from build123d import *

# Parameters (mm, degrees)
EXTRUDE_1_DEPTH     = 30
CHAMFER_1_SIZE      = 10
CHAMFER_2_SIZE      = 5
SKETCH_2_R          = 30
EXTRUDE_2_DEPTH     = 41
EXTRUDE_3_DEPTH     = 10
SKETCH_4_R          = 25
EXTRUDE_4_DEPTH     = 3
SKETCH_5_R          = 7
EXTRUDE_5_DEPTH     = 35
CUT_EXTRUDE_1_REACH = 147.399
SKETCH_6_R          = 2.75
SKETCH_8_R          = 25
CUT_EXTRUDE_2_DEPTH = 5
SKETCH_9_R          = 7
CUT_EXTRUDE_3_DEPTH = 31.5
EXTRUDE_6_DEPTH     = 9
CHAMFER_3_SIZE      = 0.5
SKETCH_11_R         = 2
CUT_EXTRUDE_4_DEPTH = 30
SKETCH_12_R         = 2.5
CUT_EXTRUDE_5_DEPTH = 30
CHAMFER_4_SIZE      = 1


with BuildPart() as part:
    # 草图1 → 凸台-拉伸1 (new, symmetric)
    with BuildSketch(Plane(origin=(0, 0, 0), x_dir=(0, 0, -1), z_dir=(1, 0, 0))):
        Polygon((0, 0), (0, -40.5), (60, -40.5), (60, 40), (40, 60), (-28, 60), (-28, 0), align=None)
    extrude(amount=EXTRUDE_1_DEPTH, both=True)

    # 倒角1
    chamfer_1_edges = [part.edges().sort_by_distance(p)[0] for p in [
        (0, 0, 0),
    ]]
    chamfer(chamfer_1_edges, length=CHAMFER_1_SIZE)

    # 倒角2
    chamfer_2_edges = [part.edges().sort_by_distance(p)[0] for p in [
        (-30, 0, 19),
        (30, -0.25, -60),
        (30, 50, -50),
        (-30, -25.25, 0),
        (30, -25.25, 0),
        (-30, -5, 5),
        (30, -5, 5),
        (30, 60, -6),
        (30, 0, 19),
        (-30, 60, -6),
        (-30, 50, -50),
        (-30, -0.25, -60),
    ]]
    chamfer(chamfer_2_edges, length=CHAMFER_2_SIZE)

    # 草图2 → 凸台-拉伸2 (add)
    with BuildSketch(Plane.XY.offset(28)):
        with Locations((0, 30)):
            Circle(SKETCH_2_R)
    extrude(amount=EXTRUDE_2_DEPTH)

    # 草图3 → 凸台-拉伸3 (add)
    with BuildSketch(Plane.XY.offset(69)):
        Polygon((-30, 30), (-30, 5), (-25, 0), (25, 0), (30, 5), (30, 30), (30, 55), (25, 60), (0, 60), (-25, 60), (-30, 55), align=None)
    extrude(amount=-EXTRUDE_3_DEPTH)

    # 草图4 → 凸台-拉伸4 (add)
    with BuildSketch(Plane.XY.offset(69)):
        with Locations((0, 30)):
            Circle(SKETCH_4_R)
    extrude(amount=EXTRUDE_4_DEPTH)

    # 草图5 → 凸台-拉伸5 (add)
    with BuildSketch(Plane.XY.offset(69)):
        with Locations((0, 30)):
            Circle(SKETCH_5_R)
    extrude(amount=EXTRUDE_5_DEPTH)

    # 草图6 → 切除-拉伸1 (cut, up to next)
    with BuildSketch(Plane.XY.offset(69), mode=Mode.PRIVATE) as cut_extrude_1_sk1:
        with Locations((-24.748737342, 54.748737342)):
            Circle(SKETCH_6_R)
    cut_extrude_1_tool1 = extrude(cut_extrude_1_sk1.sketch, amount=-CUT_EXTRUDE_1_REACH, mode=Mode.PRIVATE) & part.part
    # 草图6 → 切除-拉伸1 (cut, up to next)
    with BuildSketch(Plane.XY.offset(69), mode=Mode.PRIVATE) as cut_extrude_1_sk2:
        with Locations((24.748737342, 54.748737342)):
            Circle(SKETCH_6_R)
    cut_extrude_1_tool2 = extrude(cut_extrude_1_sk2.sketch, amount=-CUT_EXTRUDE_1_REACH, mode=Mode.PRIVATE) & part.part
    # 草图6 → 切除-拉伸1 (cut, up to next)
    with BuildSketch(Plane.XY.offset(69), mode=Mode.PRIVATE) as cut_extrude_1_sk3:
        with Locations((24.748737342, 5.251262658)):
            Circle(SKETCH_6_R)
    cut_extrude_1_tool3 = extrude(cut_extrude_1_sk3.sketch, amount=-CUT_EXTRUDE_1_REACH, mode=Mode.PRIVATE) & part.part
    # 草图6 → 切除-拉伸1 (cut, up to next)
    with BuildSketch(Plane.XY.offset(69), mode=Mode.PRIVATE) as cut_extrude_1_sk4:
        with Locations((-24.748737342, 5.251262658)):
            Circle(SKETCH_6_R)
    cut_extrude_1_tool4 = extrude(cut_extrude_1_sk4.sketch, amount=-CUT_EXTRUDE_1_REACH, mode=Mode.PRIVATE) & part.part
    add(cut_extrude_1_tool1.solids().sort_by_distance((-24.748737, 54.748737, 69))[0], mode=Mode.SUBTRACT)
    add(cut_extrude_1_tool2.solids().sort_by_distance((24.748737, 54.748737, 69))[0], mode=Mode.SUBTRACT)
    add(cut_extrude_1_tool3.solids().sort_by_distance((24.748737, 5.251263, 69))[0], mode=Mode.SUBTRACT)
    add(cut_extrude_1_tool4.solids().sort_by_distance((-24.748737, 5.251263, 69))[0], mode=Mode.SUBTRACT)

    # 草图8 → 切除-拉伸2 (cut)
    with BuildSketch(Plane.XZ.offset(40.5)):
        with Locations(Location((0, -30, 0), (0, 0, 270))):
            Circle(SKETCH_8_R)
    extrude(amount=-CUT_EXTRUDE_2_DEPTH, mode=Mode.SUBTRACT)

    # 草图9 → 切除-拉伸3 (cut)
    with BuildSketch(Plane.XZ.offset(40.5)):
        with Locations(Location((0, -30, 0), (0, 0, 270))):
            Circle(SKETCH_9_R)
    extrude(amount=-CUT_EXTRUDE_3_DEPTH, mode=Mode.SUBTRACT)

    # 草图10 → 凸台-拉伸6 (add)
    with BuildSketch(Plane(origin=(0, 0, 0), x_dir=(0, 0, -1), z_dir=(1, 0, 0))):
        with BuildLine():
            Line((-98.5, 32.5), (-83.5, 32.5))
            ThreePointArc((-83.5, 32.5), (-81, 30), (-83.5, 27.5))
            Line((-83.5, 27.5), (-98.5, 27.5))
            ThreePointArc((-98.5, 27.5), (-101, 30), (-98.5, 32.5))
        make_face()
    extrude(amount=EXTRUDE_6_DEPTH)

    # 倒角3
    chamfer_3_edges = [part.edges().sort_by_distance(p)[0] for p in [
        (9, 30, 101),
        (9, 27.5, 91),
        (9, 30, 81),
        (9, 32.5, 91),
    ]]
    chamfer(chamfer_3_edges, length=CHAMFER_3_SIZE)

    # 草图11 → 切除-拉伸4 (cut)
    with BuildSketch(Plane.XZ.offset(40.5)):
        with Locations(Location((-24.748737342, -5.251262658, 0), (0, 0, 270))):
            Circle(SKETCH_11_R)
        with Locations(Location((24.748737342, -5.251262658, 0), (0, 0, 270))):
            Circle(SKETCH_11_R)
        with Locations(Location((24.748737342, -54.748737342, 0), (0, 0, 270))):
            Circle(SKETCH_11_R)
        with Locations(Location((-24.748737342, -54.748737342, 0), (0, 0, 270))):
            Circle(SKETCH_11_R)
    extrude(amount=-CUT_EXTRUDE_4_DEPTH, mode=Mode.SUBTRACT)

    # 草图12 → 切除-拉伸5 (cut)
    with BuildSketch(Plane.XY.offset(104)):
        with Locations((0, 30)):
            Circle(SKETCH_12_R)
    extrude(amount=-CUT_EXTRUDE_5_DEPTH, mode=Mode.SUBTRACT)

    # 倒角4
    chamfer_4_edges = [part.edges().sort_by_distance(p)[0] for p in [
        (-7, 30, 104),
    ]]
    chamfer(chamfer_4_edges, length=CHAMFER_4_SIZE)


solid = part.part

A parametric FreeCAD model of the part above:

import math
import FreeCAD as App
import Part
import Sketcher
from FreeCAD import Vector
Q = App.Units.Quantity


def edges_at(feature, points):
    """Names of the edges that pass closest to the given points."""
    edges = feature.Shape.Edges
    near = lambda p: min(range(len(edges)), key=lambda i: edges[i].distToShape(Part.Vertex(*p))[0])
    return sorted({f"Edge{near(p) + 1}" for p in points})

doc = App.newDocument("Part")
body = doc.addObject("PartDesign::Body", "Body")

# Sketch on YZ plane
sketch1 = body.newObject("Sketcher::SketchObject", "Sketch")
sketch1.AttachmentSupport = (doc.getObject("YZ_Plane"), [""])
sketch1.MapMode = "FlatFace"
sketch1.addGeometry([
    Part.LineSegment(Vector(0, 0, 0), Vector(-40.5, 0, 0)),  # 0
    Part.LineSegment(Vector(-40.5, 0, 0), Vector(-40.5, -60, 0)),  # 1
    Part.LineSegment(Vector(-40.5, -60, 0), Vector(40, -60, 0)),  # 2
    Part.LineSegment(Vector(40, -60, 0), Vector(60, -40, 0)),  # 3
    Part.LineSegment(Vector(60, -40, 0), Vector(60, 28, 0)),  # 4
    Part.LineSegment(Vector(60, 28, 0), Vector(0, 28, 0)),  # 5
    Part.LineSegment(Vector(0, 28, 0), Vector(0, 0, 0)),  # 6
], False)
sketch1.addConstraint([
    Sketcher.Constraint("Coincident", 0, 2, 1, 1),
    Sketcher.Constraint("Coincident", 1, 2, 2, 1),
    Sketcher.Constraint("Coincident", 2, 2, 3, 1),
    Sketcher.Constraint("Coincident", 3, 2, 4, 1),
    Sketcher.Constraint("Coincident", 4, 2, 5, 1),
    Sketcher.Constraint("Coincident", 5, 2, 6, 1),
    Sketcher.Constraint("Coincident", 6, 2, 0, 1),
    Sketcher.Constraint("Horizontal", 0),
    Sketcher.Constraint("Vertical", 1),
    Sketcher.Constraint("Horizontal", 2),
    Sketcher.Constraint("Vertical", 4),
    Sketcher.Constraint("Horizontal", 5),
    Sketcher.Constraint("Vertical", 6),
    Sketcher.Constraint("Coincident", 6, 2, -1, 1),
    Sketcher.Constraint("Equal", 5, 1),
    Sketcher.Constraint("DistanceX", 5, 2, 5, 1, Q("60 mm")),
    Sketcher.Constraint("DistanceY", 4, 1, 4, 2, Q("68 mm")),
    Sketcher.Constraint("DistanceY", 6, 2, 6, 1, Q("28 mm")),
    Sketcher.Constraint("Angle", 3, Q("45 deg")),
    Sketcher.Constraint("DistanceX", 0, 2, 0, 1, Q("40.5 mm")),
])
pad1 = body.newObject("PartDesign::Pad", "Pad")
pad1.Profile = sketch1
pad1.Length = 60
pad1.Midplane = True
doc.recompute()

chamfer = body.newObject("PartDesign::Chamfer", "Chamfer")
chamfer.Base = (pad1, edges_at(pad1, [(0, 0, 0)]))
chamfer.Size = 10
doc.recompute()

chamfer2 = body.newObject("PartDesign::Chamfer", "Chamfer001")
chamfer2.Base = (chamfer, edges_at(chamfer, [
    (-30, 0, 19),
    (30, -0.25, -60),
    (30, 50, -50),
    (-30, -25.25, 0),
    (30, -25.25, 0),
    (-30, -5, 5),
    (30, -5, 5),
    (30, 60, -6),
    (30, 0, 19),
    (-30, 60, -6),
    (-30, 50, -50),
    (-30, -0.25, -60),
]))
chamfer2.Size = 5

# Sketch on XY plane
sketch2 = body.newObject("Sketcher::SketchObject", "Sketch001")
sketch2.AttachmentSupport = (doc.getObject("XY_Plane"), [""])
sketch2.MapMode = "FlatFace"
sketch2.AttachmentOffset = App.Placement(Vector(0, 0, 28), App.Rotation())
sketch2.addGeometry(Part.Circle(Vector(0, 30, 0), Vector(0, 0, 1), 30), False)
sketch2.addConstraint([
    Sketcher.Constraint("PointOnObject", 0, 3, -2),
    Sketcher.Constraint("Diameter", 0, Q("60 mm")),
    Sketcher.Constraint("DistanceY", -1, 1, 0, 3, Q("30 mm")),
])
pad2 = body.newObject("PartDesign::Pad", "Pad001")
pad2.Profile = sketch2
pad2.Length = 41

# Sketch on XY plane
sketch3 = body.newObject("Sketcher::SketchObject", "Sketch002")
sketch3.AttachmentSupport = (doc.getObject("XY_Plane"), [""])
sketch3.MapMode = "FlatFace"
sketch3.AttachmentOffset = App.Placement(Vector(0, 0, 69), App.Rotation())
sketch3.addGeometry([
    Part.LineSegment(Vector(-30, 5, 0), Vector(-25, 0, 0)),  # 0
    Part.LineSegment(Vector(-25, 0, 0), Vector(25, 0, 0)),  # 1
    Part.LineSegment(Vector(25, 0, 0), Vector(30, 5, 0)),  # 2
    Part.LineSegment(Vector(30, 5, 0), Vector(30, 55, 0)),  # 3
    Part.LineSegment(Vector(30, 55, 0), Vector(25, 60, 0)),  # 4
    Part.LineSegment(Vector(25, 60, 0), Vector(-25, 60, 0)),  # 5
    Part.LineSegment(Vector(-25, 60, 0), Vector(-30, 55, 0)),  # 6
    Part.LineSegment(Vector(-30, 55, 0), Vector(-30, 5, 0)),  # 7
], False)
sketch3.addConstraint([
    Sketcher.Constraint("Coincident", 0, 2, 1, 1),
    Sketcher.Constraint("Coincident", 1, 2, 2, 1),
    Sketcher.Constraint("Coincident", 2, 2, 3, 1),
    Sketcher.Constraint("Coincident", 3, 2, 4, 1),
    Sketcher.Constraint("Coincident", 4, 2, 5, 1),
    Sketcher.Constraint("Coincident", 5, 2, 6, 1),
    Sketcher.Constraint("Coincident", 6, 2, 7, 1),
    Sketcher.Constraint("Coincident", 7, 2, 0, 1),
    Sketcher.Constraint("Horizontal", 1),
    Sketcher.Constraint("Vertical", 3),
    Sketcher.Constraint("Horizontal", 5),
    Sketcher.Constraint("Vertical", 7),
    Sketcher.Constraint("Symmetric", 0, 2, 1, 2, -1, 1),
    Sketcher.Constraint("Symmetric", 3, 2, 6, 2, -2),
    Sketcher.Constraint("Perpendicular", 0, 2),
    Sketcher.Constraint("Perpendicular", 2, 4),
    Sketcher.Constraint("Perpendicular", 4, 6),
    Sketcher.Constraint("Horizontal", 2, 2, 7, 2),
    Sketcher.Constraint("Vertical", 1, 2, 4, 2),
    Sketcher.Constraint("Equal", 5, 3),
    Sketcher.Constraint("DistanceX", 1, 1, 1, 2, Q("50 mm")),
    Sketcher.Constraint("DistanceX", -1, 1, 2, 2, Q("30 mm")),
])
pad3 = body.newObject("PartDesign::Pad", "Pad002")
pad3.Profile = sketch3
pad3.Length = 10
pad3.Reversed = True

# Sketch on XY plane
sketch4 = body.newObject("Sketcher::SketchObject", "Sketch003")
sketch4.AttachmentSupport = (doc.getObject("XY_Plane"), [""])
sketch4.MapMode = "FlatFace"
sketch4.AttachmentOffset = App.Placement(Vector(0, 0, 69), App.Rotation())
sketch4.addGeometry(Part.Circle(Vector(0, 30, 0), Vector(0, 0, 1), 25), False)
sketch4.addConstraint([
    Sketcher.Constraint("PointOnObject", 0, 3, -2),
    Sketcher.Constraint("Diameter", 0, Q("50 mm")),
    Sketcher.Constraint("DistanceY", -1, 1, 0, 3, Q("30 mm")),
])
pad4 = body.newObject("PartDesign::Pad", "Pad003")
pad4.Profile = sketch4
pad4.Length = 3

# Sketch on XY plane
sketch5 = body.newObject("Sketcher::SketchObject", "Sketch004")
sketch5.AttachmentSupport = (doc.getObject("XY_Plane"), [""])
sketch5.MapMode = "FlatFace"
sketch5.AttachmentOffset = App.Placement(Vector(0, 0, 69), App.Rotation())
sketch5.addGeometry(Part.Circle(Vector(0, 30, 0), Vector(0, 0, 1), 7), False)
sketch5.addConstraint([
    Sketcher.Constraint("PointOnObject", 0, 3, -2),
    Sketcher.Constraint("Diameter", 0, Q("14 mm")),
    Sketcher.Constraint("DistanceY", -1, 1, 0, 3, Q("30 mm")),
])
pad5 = body.newObject("PartDesign::Pad", "Pad004")
pad5.Profile = sketch5
pad5.Length = 35

# Sketch on XY plane
sketch6 = body.newObject("Sketcher::SketchObject", "Sketch005")
sketch6.AttachmentSupport = (doc.getObject("XY_Plane"), [""])
sketch6.MapMode = "FlatFace"
sketch6.AttachmentOffset = App.Placement(Vector(0, 0, 69), App.Rotation())
sketch6.addGeometry(Part.Circle(Vector(-24.748737, 54.748737, 0), Vector(0, 0, 1), 2.75), False)
sketch6.addConstraint([
    Sketcher.Constraint("Diameter", 0, Q("5.5 mm")),
    Sketcher.Constraint("DistanceX", 0, 3, -1, 1, Q("24.748737 mm")),
    Sketcher.Constraint("DistanceY", -1, 1, 0, 3, Q("54.748737 mm")),
])
pocket1 = body.newObject("PartDesign::Pocket", "Pocket")
pocket1.Profile = sketch6
pocket1.Type = "UpToFirst"

# Sketch on XY plane
sketch7 = body.newObject("Sketcher::SketchObject", "Sketch006")
sketch7.AttachmentSupport = (doc.getObject("XY_Plane"), [""])
sketch7.MapMode = "FlatFace"
sketch7.AttachmentOffset = App.Placement(Vector(0, 0, 69), App.Rotation())
sketch7.addGeometry(Part.Circle(Vector(24.748737, 54.748737, 0), Vector(0, 0, 1), 2.75), False)
sketch7.addConstraint([
    Sketcher.Constraint("Diameter", 0, Q("5.5 mm")),
    Sketcher.Constraint("DistanceX", -1, 1, 0, 3, Q("24.748737 mm")),
    Sketcher.Constraint("DistanceY", -1, 1, 0, 3, Q("54.748737 mm")),
])
pocket2 = body.newObject("PartDesign::Pocket", "Pocket001")
pocket2.Profile = sketch7
pocket2.Type = "UpToFirst"

# Sketch on XY plane
sketch8 = body.newObject("Sketcher::SketchObject", "Sketch007")
sketch8.AttachmentSupport = (doc.getObject("XY_Plane"), [""])
sketch8.MapMode = "FlatFace"
sketch8.AttachmentOffset = App.Placement(Vector(0, 0, 69), App.Rotation())
sketch8.addGeometry(Part.Circle(Vector(24.748737, 5.251263, 0), Vector(0, 0, 1), 2.75), False)
sketch8.addConstraint([
    Sketcher.Constraint("Diameter", 0, Q("5.5 mm")),
    Sketcher.Constraint("DistanceX", -1, 1, 0, 3, Q("24.748737 mm")),
    Sketcher.Constraint("DistanceY", -1, 1, 0, 3, Q("5.251263 mm")),
])
pocket3 = body.newObject("PartDesign::Pocket", "Pocket002")
pocket3.Profile = sketch8
pocket3.Type = "UpToFirst"

# Sketch on XY plane
sketch9 = body.newObject("Sketcher::SketchObject", "Sketch008")
sketch9.AttachmentSupport = (doc.getObject("XY_Plane"), [""])
sketch9.MapMode = "FlatFace"
sketch9.AttachmentOffset = App.Placement(Vector(0, 0, 69), App.Rotation())
sketch9.addGeometry(Part.Circle(Vector(-24.748737, 5.251263, 0), Vector(0, 0, 1), 2.75), False)
sketch9.addConstraint([
    Sketcher.Constraint("Diameter", 0, Q("5.5 mm")),
    Sketcher.Constraint("DistanceX", 0, 3, -1, 1, Q("24.748737 mm")),
    Sketcher.Constraint("DistanceY", -1, 1, 0, 3, Q("5.251263 mm")),
])
pocket4 = body.newObject("PartDesign::Pocket", "Pocket003")
pocket4.Profile = sketch9
pocket4.Type = "UpToFirst"

# Sketch on XZ plane
sketch10 = body.newObject("Sketcher::SketchObject", "Sketch009")
sketch10.AttachmentSupport = (doc.getObject("XZ_Plane"), [""])
sketch10.MapMode = "FlatFace"
sketch10.AttachmentOffset = App.Placement(Vector(0, 0, 40.5), App.Rotation())
sketch10.addGeometry(Part.Circle(Vector(0, -30, 0), Vector(0, 0, 1), 25), False)
sketch10.addConstraint([
    Sketcher.Constraint("PointOnObject", 0, 3, -2),
    Sketcher.Constraint("Diameter", 0, Q("50 mm")),
    Sketcher.Constraint("DistanceY", 0, 3, -1, 1, Q("30 mm")),
])
pocket5 = body.newObject("PartDesign::Pocket", "Pocket004")
pocket5.Profile = sketch10
pocket5.Length = 5

# Sketch on XZ plane
sketch11 = body.newObject("Sketcher::SketchObject", "Sketch010")
sketch11.AttachmentSupport = (doc.getObject("XZ_Plane"), [""])
sketch11.MapMode = "FlatFace"
sketch11.AttachmentOffset = App.Placement(Vector(0, 0, 40.5), App.Rotation())
sketch11.addGeometry(Part.Circle(Vector(0, -30, 0), Vector(0, 0, 1), 7), False)
sketch11.addConstraint([
    Sketcher.Constraint("PointOnObject", 0, 3, -2),
    Sketcher.Constraint("Diameter", 0, Q("14 mm")),
    Sketcher.Constraint("DistanceY", 0, 3, -1, 1, Q("30 mm")),
])
pocket6 = body.newObject("PartDesign::Pocket", "Pocket005")
pocket6.Profile = sketch11
pocket6.Length = 31.5

# Sketch on YZ plane
sketch12 = body.newObject("Sketcher::SketchObject", "Sketch011")
sketch12.AttachmentSupport = (doc.getObject("YZ_Plane"), [""])
sketch12.MapMode = "FlatFace"
sketch12.addGeometry([
    Part.LineSegment(Vector(32.5, 83.5, 0), Vector(32.5, 98.5, 0)),
    Part.ArcOfCircle(Part.Circle(Vector(30, 98.5, 0), Vector(0, 0, 1), 2.5), math.radians(0), math.radians(180)),
    Part.LineSegment(Vector(27.5, 98.5, 0), Vector(27.5, 83.5, 0)),
    Part.ArcOfCircle(Part.Circle(Vector(30, 83.5, 0), Vector(0, 0, 1), 2.5), math.radians(180), math.radians(360)),
], False)
sketch12.addConstraint([
    Sketcher.Constraint("Tangent", 0, 2, 1, 1),
    Sketcher.Constraint("Tangent", 1, 2, 2, 1),
    Sketcher.Constraint("Tangent", 2, 2, 3, 1),
    Sketcher.Constraint("Tangent", 3, 2, 0, 1),
    Sketcher.Constraint("Vertical", 0),
    Sketcher.Constraint("Vertical", 2),
    Sketcher.Constraint("Radius", 1, Q("2.5 mm")),
    Sketcher.Constraint("DistanceY", 0, 1, 0, 2, Q("15 mm")),
    Sketcher.Constraint("DistanceX", -1, 1, 1, 3, Q("30 mm")),
    Sketcher.Constraint("DistanceY", -1, 1, 1, 3, Q("98.5 mm")),
])
pad6 = body.newObject("PartDesign::Pad", "Pad005")
pad6.Profile = sketch12
pad6.Length = 9
doc.recompute()

chamfer3 = body.newObject("PartDesign::Chamfer", "Chamfer002")
chamfer3.Base = (pad6, edges_at(pad6, [
    (9, 30, 101),
    (9, 27.5, 91),
    (9, 30, 81),
    (9, 32.5, 91),
]))
chamfer3.Size = 0.5

# Sketch on XZ plane
sketch13 = body.newObject("Sketcher::SketchObject", "Sketch012")
sketch13.AttachmentSupport = (doc.getObject("XZ_Plane"), [""])
sketch13.MapMode = "FlatFace"
sketch13.AttachmentOffset = App.Placement(Vector(0, 0, 40.5), App.Rotation())
sketch13.addGeometry([
    Part.Circle(Vector(-24.748737, -5.251263, 0), Vector(0, 0, 1), 2),
    Part.Circle(Vector(24.748737, -5.251263, 0), Vector(0, 0, 1), 2),
    Part.Circle(Vector(24.748737, -54.748737, 0), Vector(0, 0, 1), 2),
    Part.Circle(Vector(-24.748737, -54.748737, 0), Vector(0, 0, 1), 2),
], False)
sketch13.addConstraint([
    Sketcher.Constraint("Equal", 0, 1),
    Sketcher.Constraint("Equal", 1, 2),
    Sketcher.Constraint("Equal", 2, 3),
    Sketcher.Constraint("Symmetric", 0, 3, 1, 3, -2),
    Sketcher.Constraint("Symmetric", 2, 3, 3, 3, -2),
    Sketcher.Constraint("Vertical", 1, 3, 2, 3),
    Sketcher.Constraint("Diameter", 0, Q("4 mm")),
    Sketcher.Constraint("DistanceX", 0, 3, -1, 1, Q("24.748737 mm")),
    Sketcher.Constraint("DistanceY", 0, 3, -1, 1, Q("5.251263 mm")),
    Sketcher.Constraint("DistanceY", 2, 3, -1, 1, Q("54.748737 mm")),
])
pocket7 = body.newObject("PartDesign::Pocket", "Pocket006")
pocket7.Profile = sketch13
pocket7.Length = 30

# Sketch on XY plane
sketch14 = body.newObject("Sketcher::SketchObject", "Sketch013")
sketch14.AttachmentSupport = (doc.getObject("XY_Plane"), [""])
sketch14.MapMode = "FlatFace"
sketch14.AttachmentOffset = App.Placement(Vector(0, 0, 104), App.Rotation())
sketch14.addGeometry(Part.Circle(Vector(0, 30, 0), Vector(0, 0, 1), 2.5), False)
sketch14.addConstraint([
    Sketcher.Constraint("PointOnObject", 0, 3, -2),
    Sketcher.Constraint("Diameter", 0, Q("5 mm")),
    Sketcher.Constraint("DistanceY", -1, 1, 0, 3, Q("30 mm")),
])
pocket8 = body.newObject("PartDesign::Pocket", "Pocket007")
pocket8.Profile = sketch14
pocket8.Length = 30
doc.recompute()

chamfer4 = body.newObject("PartDesign::Chamfer", "Chamfer003")
chamfer4.Base = (pocket8, edges_at(pocket8, [(-7, 30, 104)]))
chamfer4.Size = 1

doc.recompute()
